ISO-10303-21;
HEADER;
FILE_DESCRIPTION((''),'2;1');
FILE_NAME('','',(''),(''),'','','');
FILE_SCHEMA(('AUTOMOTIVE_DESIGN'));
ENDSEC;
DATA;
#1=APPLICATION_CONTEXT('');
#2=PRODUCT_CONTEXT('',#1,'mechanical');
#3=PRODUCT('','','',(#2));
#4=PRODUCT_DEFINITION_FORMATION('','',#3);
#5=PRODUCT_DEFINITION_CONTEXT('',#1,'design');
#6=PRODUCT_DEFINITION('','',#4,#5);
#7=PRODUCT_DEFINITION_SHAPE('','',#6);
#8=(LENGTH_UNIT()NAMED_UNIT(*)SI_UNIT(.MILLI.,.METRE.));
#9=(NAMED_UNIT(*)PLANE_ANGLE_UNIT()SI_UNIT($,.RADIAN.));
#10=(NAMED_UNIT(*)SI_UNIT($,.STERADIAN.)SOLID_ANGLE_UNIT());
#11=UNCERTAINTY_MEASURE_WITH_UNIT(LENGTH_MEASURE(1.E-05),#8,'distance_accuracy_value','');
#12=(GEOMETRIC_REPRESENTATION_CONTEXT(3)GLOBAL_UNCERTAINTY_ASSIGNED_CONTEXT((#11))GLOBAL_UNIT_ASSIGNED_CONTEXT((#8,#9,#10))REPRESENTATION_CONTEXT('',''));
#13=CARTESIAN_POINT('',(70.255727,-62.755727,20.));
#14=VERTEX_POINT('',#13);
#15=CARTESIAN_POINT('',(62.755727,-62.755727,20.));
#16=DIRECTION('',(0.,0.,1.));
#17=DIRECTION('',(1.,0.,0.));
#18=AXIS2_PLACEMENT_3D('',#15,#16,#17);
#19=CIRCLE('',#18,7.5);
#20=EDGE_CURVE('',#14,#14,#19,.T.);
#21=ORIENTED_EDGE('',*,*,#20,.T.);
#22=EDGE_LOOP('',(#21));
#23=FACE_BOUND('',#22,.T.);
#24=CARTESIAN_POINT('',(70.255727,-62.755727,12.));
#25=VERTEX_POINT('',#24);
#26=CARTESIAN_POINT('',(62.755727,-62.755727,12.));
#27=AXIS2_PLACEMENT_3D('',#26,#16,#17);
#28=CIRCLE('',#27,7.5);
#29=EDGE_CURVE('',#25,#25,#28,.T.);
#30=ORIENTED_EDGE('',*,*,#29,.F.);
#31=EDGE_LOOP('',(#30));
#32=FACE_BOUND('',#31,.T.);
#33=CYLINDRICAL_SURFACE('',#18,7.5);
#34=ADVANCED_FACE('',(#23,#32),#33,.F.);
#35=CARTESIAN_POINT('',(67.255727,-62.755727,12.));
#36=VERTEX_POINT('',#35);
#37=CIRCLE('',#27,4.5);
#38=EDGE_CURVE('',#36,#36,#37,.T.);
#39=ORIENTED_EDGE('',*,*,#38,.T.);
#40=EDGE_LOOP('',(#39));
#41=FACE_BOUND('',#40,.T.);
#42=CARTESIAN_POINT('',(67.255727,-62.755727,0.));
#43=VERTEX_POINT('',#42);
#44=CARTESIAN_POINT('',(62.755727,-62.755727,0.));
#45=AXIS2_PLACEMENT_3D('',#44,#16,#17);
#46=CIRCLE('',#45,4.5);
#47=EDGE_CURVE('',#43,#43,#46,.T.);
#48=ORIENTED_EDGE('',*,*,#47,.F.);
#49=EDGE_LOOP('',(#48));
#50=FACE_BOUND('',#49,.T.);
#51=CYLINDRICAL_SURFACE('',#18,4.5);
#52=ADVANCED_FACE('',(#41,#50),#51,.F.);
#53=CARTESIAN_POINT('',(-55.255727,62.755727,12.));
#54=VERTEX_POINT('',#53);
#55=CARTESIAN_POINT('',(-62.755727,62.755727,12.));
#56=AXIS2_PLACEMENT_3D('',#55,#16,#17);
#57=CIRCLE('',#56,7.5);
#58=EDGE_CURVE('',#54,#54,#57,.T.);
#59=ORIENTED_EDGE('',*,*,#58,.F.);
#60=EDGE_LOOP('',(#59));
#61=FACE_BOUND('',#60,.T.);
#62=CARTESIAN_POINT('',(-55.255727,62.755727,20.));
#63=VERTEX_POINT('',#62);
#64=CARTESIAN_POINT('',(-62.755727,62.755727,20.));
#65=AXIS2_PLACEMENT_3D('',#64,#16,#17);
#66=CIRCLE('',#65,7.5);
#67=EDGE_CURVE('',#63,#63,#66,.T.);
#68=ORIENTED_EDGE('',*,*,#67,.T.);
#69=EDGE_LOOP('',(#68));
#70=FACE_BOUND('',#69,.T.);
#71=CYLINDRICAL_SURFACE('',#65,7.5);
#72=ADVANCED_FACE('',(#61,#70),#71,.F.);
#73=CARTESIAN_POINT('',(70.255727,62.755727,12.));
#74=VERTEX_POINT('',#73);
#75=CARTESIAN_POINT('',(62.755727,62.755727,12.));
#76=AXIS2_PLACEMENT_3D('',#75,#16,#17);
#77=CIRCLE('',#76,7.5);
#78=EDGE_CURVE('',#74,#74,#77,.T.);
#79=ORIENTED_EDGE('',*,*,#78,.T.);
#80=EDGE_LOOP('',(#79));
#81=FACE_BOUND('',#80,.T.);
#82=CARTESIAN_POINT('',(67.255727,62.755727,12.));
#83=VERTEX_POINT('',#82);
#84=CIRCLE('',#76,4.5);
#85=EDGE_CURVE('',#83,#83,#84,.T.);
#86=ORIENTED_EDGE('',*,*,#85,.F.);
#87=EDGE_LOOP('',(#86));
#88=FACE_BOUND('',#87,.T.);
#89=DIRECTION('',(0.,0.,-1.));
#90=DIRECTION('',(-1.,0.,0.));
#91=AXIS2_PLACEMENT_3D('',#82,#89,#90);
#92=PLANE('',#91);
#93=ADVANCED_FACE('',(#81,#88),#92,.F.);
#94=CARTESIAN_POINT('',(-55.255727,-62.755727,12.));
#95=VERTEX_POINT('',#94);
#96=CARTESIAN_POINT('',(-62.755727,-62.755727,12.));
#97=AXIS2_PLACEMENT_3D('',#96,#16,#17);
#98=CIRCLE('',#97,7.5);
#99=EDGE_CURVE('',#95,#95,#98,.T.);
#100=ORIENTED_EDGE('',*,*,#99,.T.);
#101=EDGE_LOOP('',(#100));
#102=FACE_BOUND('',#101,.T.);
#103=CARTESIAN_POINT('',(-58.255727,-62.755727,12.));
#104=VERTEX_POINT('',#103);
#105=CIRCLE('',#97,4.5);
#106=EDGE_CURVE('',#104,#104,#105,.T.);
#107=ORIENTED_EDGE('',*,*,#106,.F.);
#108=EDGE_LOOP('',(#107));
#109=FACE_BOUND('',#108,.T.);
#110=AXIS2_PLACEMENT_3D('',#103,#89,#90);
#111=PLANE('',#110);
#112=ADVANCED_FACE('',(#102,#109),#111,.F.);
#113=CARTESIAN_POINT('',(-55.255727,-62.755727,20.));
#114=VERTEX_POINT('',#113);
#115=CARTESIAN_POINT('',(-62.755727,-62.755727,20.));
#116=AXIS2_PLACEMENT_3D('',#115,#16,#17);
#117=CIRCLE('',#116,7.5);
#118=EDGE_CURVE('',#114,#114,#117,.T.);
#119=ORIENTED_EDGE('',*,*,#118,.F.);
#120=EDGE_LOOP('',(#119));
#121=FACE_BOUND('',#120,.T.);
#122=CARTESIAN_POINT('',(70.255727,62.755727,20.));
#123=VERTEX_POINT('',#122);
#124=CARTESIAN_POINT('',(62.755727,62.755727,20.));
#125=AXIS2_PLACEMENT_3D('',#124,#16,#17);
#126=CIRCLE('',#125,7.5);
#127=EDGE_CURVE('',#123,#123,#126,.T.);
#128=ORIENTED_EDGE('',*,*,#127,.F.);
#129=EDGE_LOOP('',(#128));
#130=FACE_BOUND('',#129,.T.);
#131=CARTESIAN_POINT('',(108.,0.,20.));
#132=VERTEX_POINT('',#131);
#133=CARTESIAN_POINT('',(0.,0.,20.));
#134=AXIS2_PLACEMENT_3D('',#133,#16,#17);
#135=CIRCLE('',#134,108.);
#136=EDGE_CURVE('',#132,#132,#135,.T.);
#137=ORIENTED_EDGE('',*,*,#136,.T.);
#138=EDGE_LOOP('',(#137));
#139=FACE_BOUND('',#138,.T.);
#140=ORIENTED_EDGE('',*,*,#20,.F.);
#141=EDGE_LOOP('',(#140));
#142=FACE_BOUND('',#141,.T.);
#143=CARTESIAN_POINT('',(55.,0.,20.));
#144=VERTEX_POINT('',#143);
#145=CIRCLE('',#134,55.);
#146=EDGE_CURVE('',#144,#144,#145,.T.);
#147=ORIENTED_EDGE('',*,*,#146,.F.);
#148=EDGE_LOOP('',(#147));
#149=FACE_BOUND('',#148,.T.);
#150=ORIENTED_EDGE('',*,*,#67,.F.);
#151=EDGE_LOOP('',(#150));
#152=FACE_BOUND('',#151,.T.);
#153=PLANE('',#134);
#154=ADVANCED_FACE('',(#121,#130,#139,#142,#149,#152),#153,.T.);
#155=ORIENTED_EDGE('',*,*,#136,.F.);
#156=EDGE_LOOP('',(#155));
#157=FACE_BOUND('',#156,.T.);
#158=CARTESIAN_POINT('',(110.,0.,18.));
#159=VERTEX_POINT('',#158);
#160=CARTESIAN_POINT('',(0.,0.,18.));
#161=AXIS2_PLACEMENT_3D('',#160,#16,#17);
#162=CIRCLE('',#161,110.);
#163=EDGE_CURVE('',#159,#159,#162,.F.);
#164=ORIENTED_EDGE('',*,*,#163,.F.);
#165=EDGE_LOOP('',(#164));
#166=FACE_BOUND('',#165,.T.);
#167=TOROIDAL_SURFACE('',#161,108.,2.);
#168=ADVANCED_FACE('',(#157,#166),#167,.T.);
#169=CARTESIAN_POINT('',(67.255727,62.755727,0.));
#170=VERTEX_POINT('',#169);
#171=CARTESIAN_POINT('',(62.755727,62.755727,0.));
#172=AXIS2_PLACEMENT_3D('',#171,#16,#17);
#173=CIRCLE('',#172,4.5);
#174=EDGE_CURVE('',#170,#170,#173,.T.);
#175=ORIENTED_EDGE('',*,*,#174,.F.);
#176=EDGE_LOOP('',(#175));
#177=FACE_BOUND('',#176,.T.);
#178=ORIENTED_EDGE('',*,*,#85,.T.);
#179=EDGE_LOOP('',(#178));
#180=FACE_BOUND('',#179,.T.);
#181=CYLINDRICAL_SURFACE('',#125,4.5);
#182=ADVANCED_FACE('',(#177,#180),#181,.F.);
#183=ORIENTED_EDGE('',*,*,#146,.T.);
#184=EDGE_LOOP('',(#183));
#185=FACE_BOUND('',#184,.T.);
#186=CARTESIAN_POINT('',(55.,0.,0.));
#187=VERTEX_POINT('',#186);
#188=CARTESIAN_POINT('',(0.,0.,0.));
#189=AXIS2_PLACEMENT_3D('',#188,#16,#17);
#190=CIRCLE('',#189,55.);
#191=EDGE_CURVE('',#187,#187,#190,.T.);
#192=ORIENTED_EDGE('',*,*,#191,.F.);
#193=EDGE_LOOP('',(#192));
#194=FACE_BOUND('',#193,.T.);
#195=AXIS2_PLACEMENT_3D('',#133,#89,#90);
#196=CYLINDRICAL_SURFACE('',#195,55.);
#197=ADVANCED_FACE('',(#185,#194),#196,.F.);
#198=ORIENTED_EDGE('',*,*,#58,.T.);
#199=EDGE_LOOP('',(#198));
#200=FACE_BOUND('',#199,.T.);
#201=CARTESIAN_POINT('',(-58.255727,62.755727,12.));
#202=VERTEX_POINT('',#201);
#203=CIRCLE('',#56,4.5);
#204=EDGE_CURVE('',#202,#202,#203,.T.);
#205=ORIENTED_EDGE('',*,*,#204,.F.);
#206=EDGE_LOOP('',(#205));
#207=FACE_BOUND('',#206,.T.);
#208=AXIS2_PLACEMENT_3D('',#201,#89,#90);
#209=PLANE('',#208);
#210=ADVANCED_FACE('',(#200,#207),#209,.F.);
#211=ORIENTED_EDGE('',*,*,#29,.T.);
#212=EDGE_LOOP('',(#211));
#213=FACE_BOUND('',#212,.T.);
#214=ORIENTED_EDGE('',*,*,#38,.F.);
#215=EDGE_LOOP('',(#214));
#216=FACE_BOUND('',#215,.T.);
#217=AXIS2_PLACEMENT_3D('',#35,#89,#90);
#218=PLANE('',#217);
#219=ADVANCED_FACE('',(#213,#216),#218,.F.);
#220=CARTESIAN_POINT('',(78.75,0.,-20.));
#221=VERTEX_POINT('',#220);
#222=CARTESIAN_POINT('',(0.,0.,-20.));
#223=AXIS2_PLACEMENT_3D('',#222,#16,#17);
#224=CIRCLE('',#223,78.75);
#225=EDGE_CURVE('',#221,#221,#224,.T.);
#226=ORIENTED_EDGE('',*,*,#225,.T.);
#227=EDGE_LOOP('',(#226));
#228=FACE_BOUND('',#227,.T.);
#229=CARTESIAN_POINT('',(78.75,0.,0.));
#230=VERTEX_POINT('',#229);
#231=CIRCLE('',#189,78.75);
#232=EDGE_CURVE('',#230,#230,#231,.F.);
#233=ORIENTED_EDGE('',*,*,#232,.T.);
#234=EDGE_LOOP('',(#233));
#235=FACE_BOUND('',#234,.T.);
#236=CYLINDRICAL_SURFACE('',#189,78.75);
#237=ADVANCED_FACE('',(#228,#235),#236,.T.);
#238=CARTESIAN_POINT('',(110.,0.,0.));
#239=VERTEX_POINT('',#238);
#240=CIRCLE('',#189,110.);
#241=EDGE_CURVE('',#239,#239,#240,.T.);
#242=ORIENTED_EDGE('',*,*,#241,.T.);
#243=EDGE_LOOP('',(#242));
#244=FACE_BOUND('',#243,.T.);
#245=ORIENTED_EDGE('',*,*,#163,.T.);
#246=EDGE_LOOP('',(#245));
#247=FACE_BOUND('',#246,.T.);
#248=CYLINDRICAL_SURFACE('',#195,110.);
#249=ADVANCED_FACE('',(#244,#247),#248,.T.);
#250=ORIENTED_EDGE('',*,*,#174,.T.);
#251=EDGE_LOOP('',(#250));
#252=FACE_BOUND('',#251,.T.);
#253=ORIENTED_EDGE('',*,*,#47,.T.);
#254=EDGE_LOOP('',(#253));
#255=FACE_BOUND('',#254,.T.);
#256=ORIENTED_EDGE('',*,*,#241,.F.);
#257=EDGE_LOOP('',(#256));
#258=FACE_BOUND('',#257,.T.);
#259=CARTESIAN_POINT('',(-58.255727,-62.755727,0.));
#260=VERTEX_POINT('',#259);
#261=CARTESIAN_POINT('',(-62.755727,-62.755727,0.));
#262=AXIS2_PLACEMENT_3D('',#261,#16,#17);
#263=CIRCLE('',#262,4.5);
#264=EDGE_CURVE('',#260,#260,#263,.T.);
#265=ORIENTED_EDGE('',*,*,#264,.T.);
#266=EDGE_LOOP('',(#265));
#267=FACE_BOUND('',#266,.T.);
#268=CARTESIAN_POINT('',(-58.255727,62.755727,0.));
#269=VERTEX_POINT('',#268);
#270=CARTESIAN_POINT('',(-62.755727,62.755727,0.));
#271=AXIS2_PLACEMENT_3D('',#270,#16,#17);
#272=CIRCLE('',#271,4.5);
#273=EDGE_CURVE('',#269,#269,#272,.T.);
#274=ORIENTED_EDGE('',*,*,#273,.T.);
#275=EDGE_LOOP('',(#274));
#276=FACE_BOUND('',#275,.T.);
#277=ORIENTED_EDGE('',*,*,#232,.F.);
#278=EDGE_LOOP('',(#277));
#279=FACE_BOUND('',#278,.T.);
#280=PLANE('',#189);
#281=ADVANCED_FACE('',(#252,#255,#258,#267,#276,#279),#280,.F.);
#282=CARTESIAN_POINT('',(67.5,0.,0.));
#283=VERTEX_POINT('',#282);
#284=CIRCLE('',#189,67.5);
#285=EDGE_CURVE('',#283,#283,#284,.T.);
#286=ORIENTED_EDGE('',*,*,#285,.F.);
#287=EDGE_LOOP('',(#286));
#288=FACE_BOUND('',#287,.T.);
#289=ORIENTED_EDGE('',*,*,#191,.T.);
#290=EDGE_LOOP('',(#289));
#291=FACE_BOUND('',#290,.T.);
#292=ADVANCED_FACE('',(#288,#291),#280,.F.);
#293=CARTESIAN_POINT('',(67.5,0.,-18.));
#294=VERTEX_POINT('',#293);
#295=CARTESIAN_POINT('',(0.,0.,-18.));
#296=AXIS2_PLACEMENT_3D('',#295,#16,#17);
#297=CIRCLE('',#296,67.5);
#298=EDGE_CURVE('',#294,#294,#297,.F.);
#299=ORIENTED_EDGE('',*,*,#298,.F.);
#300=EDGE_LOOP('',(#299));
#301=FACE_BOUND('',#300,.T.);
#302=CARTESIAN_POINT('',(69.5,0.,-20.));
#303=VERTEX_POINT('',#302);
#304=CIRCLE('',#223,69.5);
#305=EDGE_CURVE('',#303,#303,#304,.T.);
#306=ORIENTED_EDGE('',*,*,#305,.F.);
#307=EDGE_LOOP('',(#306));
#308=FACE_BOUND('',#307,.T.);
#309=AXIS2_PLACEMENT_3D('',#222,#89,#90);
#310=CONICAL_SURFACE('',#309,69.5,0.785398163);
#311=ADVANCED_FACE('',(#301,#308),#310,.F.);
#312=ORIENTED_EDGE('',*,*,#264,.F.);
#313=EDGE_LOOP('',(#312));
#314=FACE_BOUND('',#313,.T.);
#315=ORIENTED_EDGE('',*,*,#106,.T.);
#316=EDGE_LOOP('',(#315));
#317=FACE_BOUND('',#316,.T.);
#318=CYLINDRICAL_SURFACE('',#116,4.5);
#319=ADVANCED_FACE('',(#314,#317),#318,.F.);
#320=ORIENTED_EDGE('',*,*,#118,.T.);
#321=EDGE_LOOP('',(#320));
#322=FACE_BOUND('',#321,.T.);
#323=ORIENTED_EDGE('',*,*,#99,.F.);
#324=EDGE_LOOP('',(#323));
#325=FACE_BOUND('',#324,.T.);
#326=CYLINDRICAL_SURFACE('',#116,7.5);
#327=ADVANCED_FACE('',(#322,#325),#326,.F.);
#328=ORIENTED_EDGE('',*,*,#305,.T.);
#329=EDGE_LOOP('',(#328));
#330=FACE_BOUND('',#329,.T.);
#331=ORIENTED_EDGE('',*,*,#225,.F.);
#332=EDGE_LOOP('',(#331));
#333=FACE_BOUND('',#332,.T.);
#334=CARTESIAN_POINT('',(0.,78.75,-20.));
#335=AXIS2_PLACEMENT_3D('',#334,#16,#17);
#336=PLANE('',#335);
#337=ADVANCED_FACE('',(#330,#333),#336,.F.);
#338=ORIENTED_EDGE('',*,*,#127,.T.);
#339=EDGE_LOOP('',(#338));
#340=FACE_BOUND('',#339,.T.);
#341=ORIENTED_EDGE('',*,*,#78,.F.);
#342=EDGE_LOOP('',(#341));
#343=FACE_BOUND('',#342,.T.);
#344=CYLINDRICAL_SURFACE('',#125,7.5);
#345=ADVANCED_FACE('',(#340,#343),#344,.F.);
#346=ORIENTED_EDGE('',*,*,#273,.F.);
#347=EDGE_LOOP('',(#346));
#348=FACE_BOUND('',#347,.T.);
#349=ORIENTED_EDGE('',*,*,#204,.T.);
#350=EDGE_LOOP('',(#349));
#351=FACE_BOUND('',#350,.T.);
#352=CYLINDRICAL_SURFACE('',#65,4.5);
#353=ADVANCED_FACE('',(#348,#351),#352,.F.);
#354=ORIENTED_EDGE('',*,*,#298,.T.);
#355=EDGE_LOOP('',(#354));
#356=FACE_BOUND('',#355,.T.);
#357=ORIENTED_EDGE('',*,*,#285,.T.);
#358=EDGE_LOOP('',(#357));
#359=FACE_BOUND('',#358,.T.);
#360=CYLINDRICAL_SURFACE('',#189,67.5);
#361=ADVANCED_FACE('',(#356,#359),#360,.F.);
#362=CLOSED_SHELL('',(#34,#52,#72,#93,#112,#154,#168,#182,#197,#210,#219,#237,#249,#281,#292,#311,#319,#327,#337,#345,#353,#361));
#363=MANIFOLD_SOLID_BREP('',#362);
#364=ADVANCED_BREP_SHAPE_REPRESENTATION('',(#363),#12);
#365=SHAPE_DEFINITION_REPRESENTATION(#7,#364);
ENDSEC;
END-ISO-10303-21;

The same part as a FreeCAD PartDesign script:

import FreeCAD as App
import Part
import Sketcher


def edges_at(feature, points):
    """Names of the edges that pass closest to the given points."""
    edges = feature.Shape.Edges
    near = lambda p: min(range(len(edges)), key=lambda i: edges[i].distToShape(Part.Vertex(*p))[0])
    return sorted({f"Edge{near(p) + 1}" for p in points})

doc = App.newDocument("Part")
body = doc.addObject("PartDesign::Body", "Body")

sketch1 = doc.addObject("Sketcher::SketchObject", "Sketch")
body.addObject(sketch1)
sketch1.AttachmentSupport = (doc.XY_Plane, [""])
sketch1.MapMode = "FlatFace"
sketch1.addGeometry([
    Part.Circle(App.Vector(0, 0, 0), App.Vector(0, 0, 1), 110),
    Part.Circle(App.Vector(0, 0, 0), App.Vector(0, 0, 1), 55),
], False)
sketch1.addConstraint([
    Sketcher.Constraint("Coincident", 0, 3, -1, 1),
    Sketcher.Constraint("Coincident", 1, 3, -1, 1),
    Sketcher.Constraint("Diameter", 0, 220.0),
    Sketcher.Constraint("Diameter", 1, 110.0),
])
pad1 = doc.addObject("PartDesign::Pad", "Pad")
body.addObject(pad1)
pad1.Profile = sketch1
pad1.Length = 20

sketch2 = doc.addObject("Sketcher::SketchObject", "Sketch001")
body.addObject(sketch2)
sketch2.AttachmentSupport = (doc.YZ_Plane, [""])
sketch2.MapMode = "FlatFace"
sketch2.addGeometry([
    Part.LineSegment(App.Vector(79, 0, 0), App.Vector(68, 0, 0)),
    Part.LineSegment(App.Vector(68, 0, 0), App.Vector(68, -20, 0)),
    Part.LineSegment(App.Vector(68, -20, 0), App.Vector(79, -20, 0)),
    Part.LineSegment(App.Vector(79, -20, 0), App.Vector(79, 0, 0)),
], False)
sketch2.addConstraint([
    Sketcher.Constraint("Coincident", 0, 2, 1, 1),
    Sketcher.Constraint("Coincident", 1, 2, 2, 1),
    Sketcher.Constraint("Coincident", 2, 2, 3, 1),
    Sketcher.Constraint("Coincident", 3, 2, 0, 1),
    Sketcher.Constraint("Horizontal", 0),
    Sketcher.Constraint("Vertical", 1),
    Sketcher.Constraint("Horizontal", 2),
    Sketcher.Constraint("Vertical", 3),
    Sketcher.Constraint("PointOnObject", 0, 2, -1),
    Sketcher.Constraint("DistanceY", 1, 2, 1, 1, 20.0),
    Sketcher.Constraint("DistanceX", 0, 2, 0, 1, 11.25),
    Sketcher.Constraint("DistanceX", -1, 1, 0, 2, 67.5),
])
revolution = doc.addObject("PartDesign::Revolution", "Revolution")
body.addObject(revolution)
revolution.Profile = sketch2
revolution.ReferenceAxis = (sketch2, ["V_Axis"])
revolution.Angle = 360
doc.recompute()

fillet = doc.addObject("PartDesign::Fillet", "Fillet")
body.addObject(fillet)
fillet.Base = (revolution, edges_at(revolution, [(-110, 0, 20)]))
fillet.Radius = 2
doc.recompute()

chamfer = doc.addObject("PartDesign::Chamfer", "Chamfer")
body.addObject(chamfer)
chamfer.Base = (fillet, edges_at(fillet, [(-67.5, 0, -20)]))
chamfer.Size = 2

sketch3 = doc.addObject("Sketcher::SketchObject", "Sketch002")
body.addObject(sketch3)
sketch3.AttachmentSupport = (doc.XY_Plane, [""])
sketch3.MapMode = "FlatFace"
sketch3.AttachmentOffset = App.Placement(App.Vector(0, 0, 20), App.Rotation())
sketch3.addGeometry(Part.Circle(App.Vector(-62.8, 62.8, 0), App.Vector(0, 0, 1), 4.5), False)
sketch3.addConstraint([
    Sketcher.Constraint("Diameter", 0, 9.0),
    Sketcher.Constraint("DistanceX", 0, 3, -1, 1, 62.755727),
    Sketcher.Constraint("DistanceY", -1, 1, 0, 3, 62.755727),
])
doc.recompute()
hole = doc.addObject("PartDesign::Hole", "Hole")
body.addObject(hole)
hole.Profile = sketch3
hole.ThreadType = "None"
hole.Diameter = 9
hole.DepthType = "ThroughAll"
hole.HoleCutType = "Counterbore"
hole.HoleCutDiameter = 15
hole.HoleCutDepth = 8
doc.recompute()

polarpattern = doc.addObject("PartDesign::PolarPattern", "PolarPattern")
body.addObject(polarpattern)
polarpattern.Originals = [hole]
polarpattern.Axis = (doc.Z_Axis, [""])
polarpattern.Angle = 360
polarpattern.Occurrences = 4
body.Tip = polarpattern

doc.recompute()
